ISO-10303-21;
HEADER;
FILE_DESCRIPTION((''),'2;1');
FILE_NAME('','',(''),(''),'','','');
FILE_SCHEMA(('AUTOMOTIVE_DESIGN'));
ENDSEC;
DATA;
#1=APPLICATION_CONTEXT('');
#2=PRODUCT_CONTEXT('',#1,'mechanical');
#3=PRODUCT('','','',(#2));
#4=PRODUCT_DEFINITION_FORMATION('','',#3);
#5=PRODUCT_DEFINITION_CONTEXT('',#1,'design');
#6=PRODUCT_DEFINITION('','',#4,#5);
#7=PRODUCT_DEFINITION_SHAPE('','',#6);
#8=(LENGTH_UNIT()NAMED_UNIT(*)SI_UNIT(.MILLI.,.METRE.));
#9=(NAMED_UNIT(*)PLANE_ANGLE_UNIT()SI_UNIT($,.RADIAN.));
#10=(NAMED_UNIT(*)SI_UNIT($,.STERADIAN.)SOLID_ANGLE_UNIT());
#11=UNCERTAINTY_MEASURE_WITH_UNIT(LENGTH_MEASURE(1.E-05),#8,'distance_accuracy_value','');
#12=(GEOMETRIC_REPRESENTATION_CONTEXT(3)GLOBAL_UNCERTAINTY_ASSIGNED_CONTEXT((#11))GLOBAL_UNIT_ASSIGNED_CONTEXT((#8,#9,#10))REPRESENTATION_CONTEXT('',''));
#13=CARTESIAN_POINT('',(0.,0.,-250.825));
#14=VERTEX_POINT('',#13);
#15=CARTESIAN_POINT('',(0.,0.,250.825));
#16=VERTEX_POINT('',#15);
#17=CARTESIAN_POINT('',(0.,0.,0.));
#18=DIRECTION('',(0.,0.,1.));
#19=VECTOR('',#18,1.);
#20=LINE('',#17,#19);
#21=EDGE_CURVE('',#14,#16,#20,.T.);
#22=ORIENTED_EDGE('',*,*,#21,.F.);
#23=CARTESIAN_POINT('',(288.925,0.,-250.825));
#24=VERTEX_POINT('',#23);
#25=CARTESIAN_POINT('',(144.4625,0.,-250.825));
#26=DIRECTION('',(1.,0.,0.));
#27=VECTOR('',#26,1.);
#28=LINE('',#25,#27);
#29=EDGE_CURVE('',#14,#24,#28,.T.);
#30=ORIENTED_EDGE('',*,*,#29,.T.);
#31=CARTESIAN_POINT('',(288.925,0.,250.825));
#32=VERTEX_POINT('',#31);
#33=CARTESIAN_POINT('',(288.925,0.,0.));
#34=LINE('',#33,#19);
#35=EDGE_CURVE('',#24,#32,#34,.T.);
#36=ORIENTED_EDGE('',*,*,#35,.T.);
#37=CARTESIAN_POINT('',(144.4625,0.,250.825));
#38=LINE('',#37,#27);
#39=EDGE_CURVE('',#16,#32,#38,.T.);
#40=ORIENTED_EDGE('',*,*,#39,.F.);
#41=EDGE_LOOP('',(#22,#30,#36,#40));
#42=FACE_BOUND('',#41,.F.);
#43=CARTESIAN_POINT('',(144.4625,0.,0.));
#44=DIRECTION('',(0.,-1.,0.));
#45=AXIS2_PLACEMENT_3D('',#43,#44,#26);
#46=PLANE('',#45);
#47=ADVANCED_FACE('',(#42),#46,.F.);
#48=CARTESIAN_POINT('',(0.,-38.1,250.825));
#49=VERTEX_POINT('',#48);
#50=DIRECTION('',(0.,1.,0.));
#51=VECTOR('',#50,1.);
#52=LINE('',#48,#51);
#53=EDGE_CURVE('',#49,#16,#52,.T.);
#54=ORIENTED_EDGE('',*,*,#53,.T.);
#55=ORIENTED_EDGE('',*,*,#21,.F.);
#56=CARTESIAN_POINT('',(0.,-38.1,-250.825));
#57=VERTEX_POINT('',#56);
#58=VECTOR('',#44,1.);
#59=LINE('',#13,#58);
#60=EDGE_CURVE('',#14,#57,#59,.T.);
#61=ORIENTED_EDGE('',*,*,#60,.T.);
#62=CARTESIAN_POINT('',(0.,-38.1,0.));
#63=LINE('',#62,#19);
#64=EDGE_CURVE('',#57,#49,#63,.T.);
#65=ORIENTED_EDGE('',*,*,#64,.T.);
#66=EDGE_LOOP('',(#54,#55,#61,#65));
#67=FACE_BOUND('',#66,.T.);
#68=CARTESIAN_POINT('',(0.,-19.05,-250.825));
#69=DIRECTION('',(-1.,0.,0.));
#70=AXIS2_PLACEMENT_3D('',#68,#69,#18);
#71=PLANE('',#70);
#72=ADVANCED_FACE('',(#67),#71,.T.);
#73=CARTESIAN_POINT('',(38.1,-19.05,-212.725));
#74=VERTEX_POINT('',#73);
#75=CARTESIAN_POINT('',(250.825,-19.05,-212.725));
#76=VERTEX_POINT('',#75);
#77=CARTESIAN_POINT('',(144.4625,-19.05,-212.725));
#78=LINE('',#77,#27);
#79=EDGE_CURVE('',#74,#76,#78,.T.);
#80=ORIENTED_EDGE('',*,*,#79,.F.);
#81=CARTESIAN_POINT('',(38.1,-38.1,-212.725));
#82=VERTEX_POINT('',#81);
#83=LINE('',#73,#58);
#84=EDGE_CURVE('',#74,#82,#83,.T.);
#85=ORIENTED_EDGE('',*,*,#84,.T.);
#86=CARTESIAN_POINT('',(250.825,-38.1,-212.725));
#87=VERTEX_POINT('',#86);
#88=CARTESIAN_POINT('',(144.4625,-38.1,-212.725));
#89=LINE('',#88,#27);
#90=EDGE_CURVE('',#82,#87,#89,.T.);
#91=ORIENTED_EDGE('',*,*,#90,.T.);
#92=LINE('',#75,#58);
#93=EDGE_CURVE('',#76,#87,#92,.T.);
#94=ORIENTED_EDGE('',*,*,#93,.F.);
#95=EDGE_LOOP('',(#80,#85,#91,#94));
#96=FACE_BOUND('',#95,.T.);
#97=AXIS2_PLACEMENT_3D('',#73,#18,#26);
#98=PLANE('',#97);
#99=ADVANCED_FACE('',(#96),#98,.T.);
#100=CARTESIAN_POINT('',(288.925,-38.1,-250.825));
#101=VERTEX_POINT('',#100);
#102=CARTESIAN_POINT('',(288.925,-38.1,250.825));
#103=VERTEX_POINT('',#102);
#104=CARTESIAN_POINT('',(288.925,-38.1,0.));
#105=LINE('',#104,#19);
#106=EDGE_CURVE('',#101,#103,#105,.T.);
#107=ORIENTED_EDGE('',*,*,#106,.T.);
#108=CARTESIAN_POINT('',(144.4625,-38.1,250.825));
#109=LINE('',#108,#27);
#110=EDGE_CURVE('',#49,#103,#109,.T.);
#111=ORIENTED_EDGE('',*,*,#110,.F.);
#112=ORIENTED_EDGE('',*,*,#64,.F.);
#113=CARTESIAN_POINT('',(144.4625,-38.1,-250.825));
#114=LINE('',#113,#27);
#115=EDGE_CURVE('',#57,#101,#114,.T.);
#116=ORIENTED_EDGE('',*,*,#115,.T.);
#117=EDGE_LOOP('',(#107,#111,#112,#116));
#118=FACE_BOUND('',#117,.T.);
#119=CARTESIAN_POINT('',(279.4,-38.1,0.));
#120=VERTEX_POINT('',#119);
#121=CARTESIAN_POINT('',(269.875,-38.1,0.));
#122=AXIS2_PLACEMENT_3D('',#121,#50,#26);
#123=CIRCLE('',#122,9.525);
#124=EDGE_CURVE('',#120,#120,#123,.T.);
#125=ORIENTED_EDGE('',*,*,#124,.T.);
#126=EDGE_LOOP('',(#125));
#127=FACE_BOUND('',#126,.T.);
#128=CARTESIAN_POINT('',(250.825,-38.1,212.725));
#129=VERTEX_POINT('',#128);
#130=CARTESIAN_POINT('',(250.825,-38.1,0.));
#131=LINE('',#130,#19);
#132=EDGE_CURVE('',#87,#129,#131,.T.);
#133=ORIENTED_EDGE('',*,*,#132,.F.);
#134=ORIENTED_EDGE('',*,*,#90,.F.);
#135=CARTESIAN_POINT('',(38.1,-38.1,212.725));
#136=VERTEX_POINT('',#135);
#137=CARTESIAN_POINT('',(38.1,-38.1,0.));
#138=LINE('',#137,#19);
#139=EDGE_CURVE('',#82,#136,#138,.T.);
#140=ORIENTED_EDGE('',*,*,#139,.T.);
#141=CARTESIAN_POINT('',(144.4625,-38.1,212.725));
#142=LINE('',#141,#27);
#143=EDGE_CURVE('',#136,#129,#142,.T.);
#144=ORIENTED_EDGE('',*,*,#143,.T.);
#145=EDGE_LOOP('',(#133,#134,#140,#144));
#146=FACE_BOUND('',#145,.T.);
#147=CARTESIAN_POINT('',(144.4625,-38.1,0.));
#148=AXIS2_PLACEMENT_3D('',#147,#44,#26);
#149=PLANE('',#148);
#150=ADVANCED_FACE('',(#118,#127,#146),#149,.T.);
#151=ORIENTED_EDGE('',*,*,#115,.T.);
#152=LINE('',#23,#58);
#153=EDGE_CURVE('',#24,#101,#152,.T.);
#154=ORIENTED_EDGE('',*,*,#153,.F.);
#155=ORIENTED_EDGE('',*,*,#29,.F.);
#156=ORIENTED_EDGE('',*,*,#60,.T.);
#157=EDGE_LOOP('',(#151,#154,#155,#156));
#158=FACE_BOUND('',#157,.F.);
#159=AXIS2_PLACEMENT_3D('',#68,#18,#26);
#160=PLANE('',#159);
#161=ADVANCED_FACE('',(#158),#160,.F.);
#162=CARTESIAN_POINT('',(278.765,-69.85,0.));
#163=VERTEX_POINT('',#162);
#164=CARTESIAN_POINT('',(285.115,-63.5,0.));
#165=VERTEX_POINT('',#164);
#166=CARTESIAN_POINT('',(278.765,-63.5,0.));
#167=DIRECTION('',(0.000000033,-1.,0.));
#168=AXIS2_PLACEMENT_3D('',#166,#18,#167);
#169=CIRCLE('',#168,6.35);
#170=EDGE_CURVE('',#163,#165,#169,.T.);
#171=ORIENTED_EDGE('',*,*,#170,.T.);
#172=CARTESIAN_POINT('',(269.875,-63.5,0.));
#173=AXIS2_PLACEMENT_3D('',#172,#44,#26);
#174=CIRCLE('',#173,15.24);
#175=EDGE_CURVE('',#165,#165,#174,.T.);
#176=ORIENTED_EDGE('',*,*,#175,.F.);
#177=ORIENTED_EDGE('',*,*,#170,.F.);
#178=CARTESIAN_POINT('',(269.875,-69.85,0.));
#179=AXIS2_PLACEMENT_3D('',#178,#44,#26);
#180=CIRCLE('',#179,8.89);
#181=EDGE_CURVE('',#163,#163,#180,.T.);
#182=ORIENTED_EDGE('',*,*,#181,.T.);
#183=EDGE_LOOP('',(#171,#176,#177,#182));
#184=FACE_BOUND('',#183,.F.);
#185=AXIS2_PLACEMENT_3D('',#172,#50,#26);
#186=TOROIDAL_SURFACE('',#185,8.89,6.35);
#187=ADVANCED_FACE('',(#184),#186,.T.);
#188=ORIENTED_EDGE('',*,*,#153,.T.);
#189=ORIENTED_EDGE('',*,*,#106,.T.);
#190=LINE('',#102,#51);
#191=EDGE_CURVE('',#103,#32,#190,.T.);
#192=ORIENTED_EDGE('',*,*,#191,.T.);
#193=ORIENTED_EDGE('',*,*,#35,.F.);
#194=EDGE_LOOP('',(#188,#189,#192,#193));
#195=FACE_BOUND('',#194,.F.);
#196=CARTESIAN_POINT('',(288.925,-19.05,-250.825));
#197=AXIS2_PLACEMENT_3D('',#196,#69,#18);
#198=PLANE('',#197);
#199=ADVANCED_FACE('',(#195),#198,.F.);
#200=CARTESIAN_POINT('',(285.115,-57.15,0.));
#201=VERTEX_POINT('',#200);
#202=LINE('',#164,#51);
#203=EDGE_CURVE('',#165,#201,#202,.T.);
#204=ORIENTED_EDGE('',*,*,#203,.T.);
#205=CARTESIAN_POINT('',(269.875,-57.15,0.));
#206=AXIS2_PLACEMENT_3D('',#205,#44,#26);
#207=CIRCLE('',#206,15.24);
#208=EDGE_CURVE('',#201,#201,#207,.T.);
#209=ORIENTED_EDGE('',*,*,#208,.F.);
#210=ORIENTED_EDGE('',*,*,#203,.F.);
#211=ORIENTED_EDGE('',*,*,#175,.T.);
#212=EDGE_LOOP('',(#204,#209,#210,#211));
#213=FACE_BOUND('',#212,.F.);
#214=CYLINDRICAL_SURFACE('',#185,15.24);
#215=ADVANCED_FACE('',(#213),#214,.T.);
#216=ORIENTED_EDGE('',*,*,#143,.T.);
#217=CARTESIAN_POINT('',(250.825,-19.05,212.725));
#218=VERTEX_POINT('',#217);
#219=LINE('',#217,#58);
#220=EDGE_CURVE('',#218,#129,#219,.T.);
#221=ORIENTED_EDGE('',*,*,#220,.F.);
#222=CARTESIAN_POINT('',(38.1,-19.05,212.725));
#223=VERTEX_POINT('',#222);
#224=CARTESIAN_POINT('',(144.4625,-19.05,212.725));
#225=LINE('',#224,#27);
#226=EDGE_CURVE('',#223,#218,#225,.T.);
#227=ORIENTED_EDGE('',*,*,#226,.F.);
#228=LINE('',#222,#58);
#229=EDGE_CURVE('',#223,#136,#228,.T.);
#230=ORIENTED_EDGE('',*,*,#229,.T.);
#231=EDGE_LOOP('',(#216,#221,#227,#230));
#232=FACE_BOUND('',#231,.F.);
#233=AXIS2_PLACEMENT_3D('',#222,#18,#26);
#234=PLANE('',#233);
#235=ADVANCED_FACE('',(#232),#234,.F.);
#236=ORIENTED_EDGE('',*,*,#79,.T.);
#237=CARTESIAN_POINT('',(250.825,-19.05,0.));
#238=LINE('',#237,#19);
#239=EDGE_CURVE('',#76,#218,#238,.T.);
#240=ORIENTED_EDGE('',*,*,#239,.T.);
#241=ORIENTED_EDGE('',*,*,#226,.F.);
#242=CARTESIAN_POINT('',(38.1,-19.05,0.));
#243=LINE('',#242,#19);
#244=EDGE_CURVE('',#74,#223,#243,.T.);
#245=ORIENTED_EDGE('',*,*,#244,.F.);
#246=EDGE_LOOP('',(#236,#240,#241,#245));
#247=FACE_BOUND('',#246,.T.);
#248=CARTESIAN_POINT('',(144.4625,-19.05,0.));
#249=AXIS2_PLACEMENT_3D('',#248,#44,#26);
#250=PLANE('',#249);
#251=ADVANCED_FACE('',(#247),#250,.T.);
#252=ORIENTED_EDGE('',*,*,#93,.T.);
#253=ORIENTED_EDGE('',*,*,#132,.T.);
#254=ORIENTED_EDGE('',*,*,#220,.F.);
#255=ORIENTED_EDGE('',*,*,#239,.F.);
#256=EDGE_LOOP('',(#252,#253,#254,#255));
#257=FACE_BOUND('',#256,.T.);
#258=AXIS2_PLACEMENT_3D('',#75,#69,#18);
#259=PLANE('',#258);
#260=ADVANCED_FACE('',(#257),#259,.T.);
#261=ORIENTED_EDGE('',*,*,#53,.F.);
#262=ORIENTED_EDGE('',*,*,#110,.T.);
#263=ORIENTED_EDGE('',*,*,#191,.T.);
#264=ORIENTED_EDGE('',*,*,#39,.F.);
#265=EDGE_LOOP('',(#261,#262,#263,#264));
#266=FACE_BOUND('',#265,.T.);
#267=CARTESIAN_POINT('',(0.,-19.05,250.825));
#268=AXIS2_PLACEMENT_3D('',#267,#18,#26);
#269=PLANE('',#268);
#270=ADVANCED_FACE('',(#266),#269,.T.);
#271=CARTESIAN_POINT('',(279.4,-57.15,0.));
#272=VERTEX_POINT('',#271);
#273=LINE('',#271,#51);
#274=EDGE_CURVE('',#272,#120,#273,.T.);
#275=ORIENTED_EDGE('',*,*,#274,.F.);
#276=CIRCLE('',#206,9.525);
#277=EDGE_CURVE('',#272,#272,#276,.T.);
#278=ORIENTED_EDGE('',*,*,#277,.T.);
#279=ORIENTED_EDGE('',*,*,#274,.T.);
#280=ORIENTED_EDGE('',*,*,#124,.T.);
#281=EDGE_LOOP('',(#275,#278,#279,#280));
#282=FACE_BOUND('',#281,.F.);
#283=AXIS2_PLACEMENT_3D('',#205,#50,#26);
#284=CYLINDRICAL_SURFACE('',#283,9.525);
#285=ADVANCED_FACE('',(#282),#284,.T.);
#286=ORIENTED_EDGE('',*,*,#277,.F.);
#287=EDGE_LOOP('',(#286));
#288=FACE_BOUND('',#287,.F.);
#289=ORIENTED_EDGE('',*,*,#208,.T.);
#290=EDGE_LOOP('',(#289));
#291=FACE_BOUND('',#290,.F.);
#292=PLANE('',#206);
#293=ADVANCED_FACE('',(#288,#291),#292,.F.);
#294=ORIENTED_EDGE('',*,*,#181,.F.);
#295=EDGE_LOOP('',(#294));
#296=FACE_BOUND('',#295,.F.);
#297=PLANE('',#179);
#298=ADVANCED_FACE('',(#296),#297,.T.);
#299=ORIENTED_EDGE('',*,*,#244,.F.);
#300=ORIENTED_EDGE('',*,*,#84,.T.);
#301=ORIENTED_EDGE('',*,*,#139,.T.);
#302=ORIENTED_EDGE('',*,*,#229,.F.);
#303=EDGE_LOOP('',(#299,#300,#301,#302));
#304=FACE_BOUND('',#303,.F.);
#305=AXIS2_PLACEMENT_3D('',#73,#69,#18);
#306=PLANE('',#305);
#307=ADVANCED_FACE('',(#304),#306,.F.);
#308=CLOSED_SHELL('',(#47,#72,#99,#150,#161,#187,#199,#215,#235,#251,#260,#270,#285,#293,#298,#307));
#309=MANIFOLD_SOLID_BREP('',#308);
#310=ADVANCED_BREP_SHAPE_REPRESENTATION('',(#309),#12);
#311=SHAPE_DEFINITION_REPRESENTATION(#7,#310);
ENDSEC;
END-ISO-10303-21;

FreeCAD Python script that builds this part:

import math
import FreeCAD as App
import Part
import Sketcher
from FreeCAD import Vector
Q = App.Units.Quantity


def add_polygon(sketch, points):
    """Adds a closed chain of lines whose ends are joined by coincident constraints."""
    first, n = sketch.GeometryCount, len(points)
    for a, b in zip(points, points[1:] + points[:1]):
        sketch.addGeometry(Part.LineSegment(App.Vector(*a, 0), App.Vector(*b, 0)), False)
    for i in range(n):
        sketch.addConstraint(Sketcher.Constraint("Coincident", first + i, 2, first + (i + 1) % n, 1))

doc = App.newDocument("Part")
body = doc.addObject("PartDesign::Body", "Body")

sketch1 = body.newObject("Sketcher::SketchObject", "Sketch")
sketch1.AttachmentSupport = (doc.getObject("XZ_Plane"), [""])
sketch1.MapMode = "FlatFace"
add_polygon(sketch1, [(0, 251), (0, -251), (289, -251), (289, 251)])
sketch1.addConstraint([
    Sketcher.Constraint("Vertical", 0),
    Sketcher.Constraint("Horizontal", 1),
    Sketcher.Constraint("Vertical", 2),
    Sketcher.Constraint("Horizontal", 3),
    Sketcher.Constraint("Symmetric", 0, 2, 3, 2, -1, 1),
    Sketcher.Constraint("DistanceY", 0, 2, 0, 1, Q("19.75 in")),
    Sketcher.Constraint("DistanceX", 1, 1, 1, 2, Q("11.375 in")),
])
pad1 = body.newObject("PartDesign::Pad", "Pad")
pad1.Profile = sketch1
pad1.Length = Q("0.75 in")

sketch2 = body.newObject("Sketcher::SketchObject", "Sketch001")
sketch2.AttachmentSupport = (doc.getObject("XZ_Plane"), [""])
sketch2.MapMode = "FlatFace"
sketch2.AttachmentOffset = App.Placement(Vector(0, 0, 0.75 * 25.4), App.Rotation())
add_polygon(sketch2, [(0, 251), (0, -251), (289, -251), (289, 251)])
add_polygon(sketch2, [(251, -213), (38, -213), (38, 213), (251, 213)])
sketch2.addConstraint([
    Sketcher.Constraint("Vertical", 0),
    Sketcher.Constraint("Horizontal", 1),
    Sketcher.Constraint("Vertical", 2),
    Sketcher.Constraint("Horizontal", 3),
    Sketcher.Constraint("Horizontal", 4),
    Sketcher.Constraint("Vertical", 5),
    Sketcher.Constraint("Horizontal", 6),
    Sketcher.Constraint("Vertical", 7),
    Sketcher.Constraint("Symmetric", 0, 2, 3, 2, -1, 1),
    Sketcher.Constraint("DistanceY", 0, 2, 0, 1, Q("19.75 in")),
    Sketcher.Constraint("DistanceY", 5, 1, 5, 2, Q("16.75 in")),
    Sketcher.Constraint("DistanceX", -1, 1, 4, 2, Q("1.5 in")),
    Sketcher.Constraint("DistanceY", 0, 2, 4, 2, Q("1.5 in")),
    Sketcher.Constraint("DistanceX", 6, 2, 2, 2, Q("1.5 in")),
    Sketcher.Constraint("DistanceX", 1, 1, 1, 2, Q("11.375 in")),
])
pad2 = body.newObject("PartDesign::Pad", "Pad001")
pad2.Profile = sketch2
pad2.Length = Q("0.75 in")

sketch3 = body.newObject("Sketcher::SketchObject", "Sketch002")
sketch3.AttachmentSupport = (doc.getObject("XY_Plane"), [""])
sketch3.MapMode = "FlatFace"
sketch3.addGeometry([
    Part.LineSegment(Vector(279, -57, 0), Vector(279, 0, 0)),
    Part.LineSegment(Vector(279, 0, 0), Vector(270, 0, 0)),
    Part.LineSegment(Vector(270, 0, 0), Vector(270, -70, 0)),
    Part.LineSegment(Vector(270, -70, 0), Vector(279, -70, 0)),
    Part.ArcOfCircle(Part.Circle(Vector(279, -63, 0), Vector(0, 0, 1), 6), math.radians(-90), math.radians(0)),
    Part.LineSegment(Vector(285, -64, 0), Vector(285, -57, 0)),
    Part.LineSegment(Vector(285, -57, 0), Vector(279, -57, 0)),
], False)
sketch3.addGeometry(Part.LineSegment(Vector(270, 0, 0), Vector(270, -70, 0)), True)
sketch3.addConstraint([
    Sketcher.Constraint("Coincident", 0, 2, 1, 1),
    Sketcher.Constraint("Coincident", 1, 2, 2, 1),
    Sketcher.Constraint("Coincident", 2, 2, 3, 1),
    Sketcher.Constraint("Tangent", 3, 2, 4, 1),
    Sketcher.Constraint("Tangent", 4, 2, 5, 1),
    Sketcher.Constraint("Coincident", 5, 2, 6, 1),
    Sketcher.Constraint("Coincident", 6, 2, 0, 1),
    Sketcher.Constraint("Vertical", 0),
    Sketcher.Constraint("Horizontal", 1),
    Sketcher.Constraint("Vertical", 2),
    Sketcher.Constraint("Horizontal", 3),
    Sketcher.Constraint("Vertical", 5),
    Sketcher.Constraint("Horizontal", 6),
    Sketcher.Constraint("Vertical", 7),
    Sketcher.Constraint("Coincident", 7, 1, 1, 2),
    Sketcher.Constraint("PointOnObject", 0, 2, -1),
    Sketcher.Constraint("Horizontal", 3, 2, 7, 2),
    Sketcher.Constraint("Radius", 4, Q("0.25 in")),
    Sketcher.Constraint("DistanceX", -1, 1, 0, 2, Q("11 in")),
    Sketcher.Constraint("DistanceX", 3, 1, 3, 2, Q("0.35 in")),
    Sketcher.Constraint("DistanceY", 0, 1, 0, 2, Q("2.25 in")),
    Sketcher.Constraint("DistanceY", 2, 2, 2, 1, Q("2.75 in")),
    Sketcher.Constraint("DistanceX", 1, 2, 1, 1, Q("0.375 in")),
])
revolution = body.newObject("PartDesign::Revolution", "Revolution")
revolution.Profile = sketch3
revolution.ReferenceAxis = (sketch3, ["Axis0"])
revolution.Angle = 360

doc.recompute()
